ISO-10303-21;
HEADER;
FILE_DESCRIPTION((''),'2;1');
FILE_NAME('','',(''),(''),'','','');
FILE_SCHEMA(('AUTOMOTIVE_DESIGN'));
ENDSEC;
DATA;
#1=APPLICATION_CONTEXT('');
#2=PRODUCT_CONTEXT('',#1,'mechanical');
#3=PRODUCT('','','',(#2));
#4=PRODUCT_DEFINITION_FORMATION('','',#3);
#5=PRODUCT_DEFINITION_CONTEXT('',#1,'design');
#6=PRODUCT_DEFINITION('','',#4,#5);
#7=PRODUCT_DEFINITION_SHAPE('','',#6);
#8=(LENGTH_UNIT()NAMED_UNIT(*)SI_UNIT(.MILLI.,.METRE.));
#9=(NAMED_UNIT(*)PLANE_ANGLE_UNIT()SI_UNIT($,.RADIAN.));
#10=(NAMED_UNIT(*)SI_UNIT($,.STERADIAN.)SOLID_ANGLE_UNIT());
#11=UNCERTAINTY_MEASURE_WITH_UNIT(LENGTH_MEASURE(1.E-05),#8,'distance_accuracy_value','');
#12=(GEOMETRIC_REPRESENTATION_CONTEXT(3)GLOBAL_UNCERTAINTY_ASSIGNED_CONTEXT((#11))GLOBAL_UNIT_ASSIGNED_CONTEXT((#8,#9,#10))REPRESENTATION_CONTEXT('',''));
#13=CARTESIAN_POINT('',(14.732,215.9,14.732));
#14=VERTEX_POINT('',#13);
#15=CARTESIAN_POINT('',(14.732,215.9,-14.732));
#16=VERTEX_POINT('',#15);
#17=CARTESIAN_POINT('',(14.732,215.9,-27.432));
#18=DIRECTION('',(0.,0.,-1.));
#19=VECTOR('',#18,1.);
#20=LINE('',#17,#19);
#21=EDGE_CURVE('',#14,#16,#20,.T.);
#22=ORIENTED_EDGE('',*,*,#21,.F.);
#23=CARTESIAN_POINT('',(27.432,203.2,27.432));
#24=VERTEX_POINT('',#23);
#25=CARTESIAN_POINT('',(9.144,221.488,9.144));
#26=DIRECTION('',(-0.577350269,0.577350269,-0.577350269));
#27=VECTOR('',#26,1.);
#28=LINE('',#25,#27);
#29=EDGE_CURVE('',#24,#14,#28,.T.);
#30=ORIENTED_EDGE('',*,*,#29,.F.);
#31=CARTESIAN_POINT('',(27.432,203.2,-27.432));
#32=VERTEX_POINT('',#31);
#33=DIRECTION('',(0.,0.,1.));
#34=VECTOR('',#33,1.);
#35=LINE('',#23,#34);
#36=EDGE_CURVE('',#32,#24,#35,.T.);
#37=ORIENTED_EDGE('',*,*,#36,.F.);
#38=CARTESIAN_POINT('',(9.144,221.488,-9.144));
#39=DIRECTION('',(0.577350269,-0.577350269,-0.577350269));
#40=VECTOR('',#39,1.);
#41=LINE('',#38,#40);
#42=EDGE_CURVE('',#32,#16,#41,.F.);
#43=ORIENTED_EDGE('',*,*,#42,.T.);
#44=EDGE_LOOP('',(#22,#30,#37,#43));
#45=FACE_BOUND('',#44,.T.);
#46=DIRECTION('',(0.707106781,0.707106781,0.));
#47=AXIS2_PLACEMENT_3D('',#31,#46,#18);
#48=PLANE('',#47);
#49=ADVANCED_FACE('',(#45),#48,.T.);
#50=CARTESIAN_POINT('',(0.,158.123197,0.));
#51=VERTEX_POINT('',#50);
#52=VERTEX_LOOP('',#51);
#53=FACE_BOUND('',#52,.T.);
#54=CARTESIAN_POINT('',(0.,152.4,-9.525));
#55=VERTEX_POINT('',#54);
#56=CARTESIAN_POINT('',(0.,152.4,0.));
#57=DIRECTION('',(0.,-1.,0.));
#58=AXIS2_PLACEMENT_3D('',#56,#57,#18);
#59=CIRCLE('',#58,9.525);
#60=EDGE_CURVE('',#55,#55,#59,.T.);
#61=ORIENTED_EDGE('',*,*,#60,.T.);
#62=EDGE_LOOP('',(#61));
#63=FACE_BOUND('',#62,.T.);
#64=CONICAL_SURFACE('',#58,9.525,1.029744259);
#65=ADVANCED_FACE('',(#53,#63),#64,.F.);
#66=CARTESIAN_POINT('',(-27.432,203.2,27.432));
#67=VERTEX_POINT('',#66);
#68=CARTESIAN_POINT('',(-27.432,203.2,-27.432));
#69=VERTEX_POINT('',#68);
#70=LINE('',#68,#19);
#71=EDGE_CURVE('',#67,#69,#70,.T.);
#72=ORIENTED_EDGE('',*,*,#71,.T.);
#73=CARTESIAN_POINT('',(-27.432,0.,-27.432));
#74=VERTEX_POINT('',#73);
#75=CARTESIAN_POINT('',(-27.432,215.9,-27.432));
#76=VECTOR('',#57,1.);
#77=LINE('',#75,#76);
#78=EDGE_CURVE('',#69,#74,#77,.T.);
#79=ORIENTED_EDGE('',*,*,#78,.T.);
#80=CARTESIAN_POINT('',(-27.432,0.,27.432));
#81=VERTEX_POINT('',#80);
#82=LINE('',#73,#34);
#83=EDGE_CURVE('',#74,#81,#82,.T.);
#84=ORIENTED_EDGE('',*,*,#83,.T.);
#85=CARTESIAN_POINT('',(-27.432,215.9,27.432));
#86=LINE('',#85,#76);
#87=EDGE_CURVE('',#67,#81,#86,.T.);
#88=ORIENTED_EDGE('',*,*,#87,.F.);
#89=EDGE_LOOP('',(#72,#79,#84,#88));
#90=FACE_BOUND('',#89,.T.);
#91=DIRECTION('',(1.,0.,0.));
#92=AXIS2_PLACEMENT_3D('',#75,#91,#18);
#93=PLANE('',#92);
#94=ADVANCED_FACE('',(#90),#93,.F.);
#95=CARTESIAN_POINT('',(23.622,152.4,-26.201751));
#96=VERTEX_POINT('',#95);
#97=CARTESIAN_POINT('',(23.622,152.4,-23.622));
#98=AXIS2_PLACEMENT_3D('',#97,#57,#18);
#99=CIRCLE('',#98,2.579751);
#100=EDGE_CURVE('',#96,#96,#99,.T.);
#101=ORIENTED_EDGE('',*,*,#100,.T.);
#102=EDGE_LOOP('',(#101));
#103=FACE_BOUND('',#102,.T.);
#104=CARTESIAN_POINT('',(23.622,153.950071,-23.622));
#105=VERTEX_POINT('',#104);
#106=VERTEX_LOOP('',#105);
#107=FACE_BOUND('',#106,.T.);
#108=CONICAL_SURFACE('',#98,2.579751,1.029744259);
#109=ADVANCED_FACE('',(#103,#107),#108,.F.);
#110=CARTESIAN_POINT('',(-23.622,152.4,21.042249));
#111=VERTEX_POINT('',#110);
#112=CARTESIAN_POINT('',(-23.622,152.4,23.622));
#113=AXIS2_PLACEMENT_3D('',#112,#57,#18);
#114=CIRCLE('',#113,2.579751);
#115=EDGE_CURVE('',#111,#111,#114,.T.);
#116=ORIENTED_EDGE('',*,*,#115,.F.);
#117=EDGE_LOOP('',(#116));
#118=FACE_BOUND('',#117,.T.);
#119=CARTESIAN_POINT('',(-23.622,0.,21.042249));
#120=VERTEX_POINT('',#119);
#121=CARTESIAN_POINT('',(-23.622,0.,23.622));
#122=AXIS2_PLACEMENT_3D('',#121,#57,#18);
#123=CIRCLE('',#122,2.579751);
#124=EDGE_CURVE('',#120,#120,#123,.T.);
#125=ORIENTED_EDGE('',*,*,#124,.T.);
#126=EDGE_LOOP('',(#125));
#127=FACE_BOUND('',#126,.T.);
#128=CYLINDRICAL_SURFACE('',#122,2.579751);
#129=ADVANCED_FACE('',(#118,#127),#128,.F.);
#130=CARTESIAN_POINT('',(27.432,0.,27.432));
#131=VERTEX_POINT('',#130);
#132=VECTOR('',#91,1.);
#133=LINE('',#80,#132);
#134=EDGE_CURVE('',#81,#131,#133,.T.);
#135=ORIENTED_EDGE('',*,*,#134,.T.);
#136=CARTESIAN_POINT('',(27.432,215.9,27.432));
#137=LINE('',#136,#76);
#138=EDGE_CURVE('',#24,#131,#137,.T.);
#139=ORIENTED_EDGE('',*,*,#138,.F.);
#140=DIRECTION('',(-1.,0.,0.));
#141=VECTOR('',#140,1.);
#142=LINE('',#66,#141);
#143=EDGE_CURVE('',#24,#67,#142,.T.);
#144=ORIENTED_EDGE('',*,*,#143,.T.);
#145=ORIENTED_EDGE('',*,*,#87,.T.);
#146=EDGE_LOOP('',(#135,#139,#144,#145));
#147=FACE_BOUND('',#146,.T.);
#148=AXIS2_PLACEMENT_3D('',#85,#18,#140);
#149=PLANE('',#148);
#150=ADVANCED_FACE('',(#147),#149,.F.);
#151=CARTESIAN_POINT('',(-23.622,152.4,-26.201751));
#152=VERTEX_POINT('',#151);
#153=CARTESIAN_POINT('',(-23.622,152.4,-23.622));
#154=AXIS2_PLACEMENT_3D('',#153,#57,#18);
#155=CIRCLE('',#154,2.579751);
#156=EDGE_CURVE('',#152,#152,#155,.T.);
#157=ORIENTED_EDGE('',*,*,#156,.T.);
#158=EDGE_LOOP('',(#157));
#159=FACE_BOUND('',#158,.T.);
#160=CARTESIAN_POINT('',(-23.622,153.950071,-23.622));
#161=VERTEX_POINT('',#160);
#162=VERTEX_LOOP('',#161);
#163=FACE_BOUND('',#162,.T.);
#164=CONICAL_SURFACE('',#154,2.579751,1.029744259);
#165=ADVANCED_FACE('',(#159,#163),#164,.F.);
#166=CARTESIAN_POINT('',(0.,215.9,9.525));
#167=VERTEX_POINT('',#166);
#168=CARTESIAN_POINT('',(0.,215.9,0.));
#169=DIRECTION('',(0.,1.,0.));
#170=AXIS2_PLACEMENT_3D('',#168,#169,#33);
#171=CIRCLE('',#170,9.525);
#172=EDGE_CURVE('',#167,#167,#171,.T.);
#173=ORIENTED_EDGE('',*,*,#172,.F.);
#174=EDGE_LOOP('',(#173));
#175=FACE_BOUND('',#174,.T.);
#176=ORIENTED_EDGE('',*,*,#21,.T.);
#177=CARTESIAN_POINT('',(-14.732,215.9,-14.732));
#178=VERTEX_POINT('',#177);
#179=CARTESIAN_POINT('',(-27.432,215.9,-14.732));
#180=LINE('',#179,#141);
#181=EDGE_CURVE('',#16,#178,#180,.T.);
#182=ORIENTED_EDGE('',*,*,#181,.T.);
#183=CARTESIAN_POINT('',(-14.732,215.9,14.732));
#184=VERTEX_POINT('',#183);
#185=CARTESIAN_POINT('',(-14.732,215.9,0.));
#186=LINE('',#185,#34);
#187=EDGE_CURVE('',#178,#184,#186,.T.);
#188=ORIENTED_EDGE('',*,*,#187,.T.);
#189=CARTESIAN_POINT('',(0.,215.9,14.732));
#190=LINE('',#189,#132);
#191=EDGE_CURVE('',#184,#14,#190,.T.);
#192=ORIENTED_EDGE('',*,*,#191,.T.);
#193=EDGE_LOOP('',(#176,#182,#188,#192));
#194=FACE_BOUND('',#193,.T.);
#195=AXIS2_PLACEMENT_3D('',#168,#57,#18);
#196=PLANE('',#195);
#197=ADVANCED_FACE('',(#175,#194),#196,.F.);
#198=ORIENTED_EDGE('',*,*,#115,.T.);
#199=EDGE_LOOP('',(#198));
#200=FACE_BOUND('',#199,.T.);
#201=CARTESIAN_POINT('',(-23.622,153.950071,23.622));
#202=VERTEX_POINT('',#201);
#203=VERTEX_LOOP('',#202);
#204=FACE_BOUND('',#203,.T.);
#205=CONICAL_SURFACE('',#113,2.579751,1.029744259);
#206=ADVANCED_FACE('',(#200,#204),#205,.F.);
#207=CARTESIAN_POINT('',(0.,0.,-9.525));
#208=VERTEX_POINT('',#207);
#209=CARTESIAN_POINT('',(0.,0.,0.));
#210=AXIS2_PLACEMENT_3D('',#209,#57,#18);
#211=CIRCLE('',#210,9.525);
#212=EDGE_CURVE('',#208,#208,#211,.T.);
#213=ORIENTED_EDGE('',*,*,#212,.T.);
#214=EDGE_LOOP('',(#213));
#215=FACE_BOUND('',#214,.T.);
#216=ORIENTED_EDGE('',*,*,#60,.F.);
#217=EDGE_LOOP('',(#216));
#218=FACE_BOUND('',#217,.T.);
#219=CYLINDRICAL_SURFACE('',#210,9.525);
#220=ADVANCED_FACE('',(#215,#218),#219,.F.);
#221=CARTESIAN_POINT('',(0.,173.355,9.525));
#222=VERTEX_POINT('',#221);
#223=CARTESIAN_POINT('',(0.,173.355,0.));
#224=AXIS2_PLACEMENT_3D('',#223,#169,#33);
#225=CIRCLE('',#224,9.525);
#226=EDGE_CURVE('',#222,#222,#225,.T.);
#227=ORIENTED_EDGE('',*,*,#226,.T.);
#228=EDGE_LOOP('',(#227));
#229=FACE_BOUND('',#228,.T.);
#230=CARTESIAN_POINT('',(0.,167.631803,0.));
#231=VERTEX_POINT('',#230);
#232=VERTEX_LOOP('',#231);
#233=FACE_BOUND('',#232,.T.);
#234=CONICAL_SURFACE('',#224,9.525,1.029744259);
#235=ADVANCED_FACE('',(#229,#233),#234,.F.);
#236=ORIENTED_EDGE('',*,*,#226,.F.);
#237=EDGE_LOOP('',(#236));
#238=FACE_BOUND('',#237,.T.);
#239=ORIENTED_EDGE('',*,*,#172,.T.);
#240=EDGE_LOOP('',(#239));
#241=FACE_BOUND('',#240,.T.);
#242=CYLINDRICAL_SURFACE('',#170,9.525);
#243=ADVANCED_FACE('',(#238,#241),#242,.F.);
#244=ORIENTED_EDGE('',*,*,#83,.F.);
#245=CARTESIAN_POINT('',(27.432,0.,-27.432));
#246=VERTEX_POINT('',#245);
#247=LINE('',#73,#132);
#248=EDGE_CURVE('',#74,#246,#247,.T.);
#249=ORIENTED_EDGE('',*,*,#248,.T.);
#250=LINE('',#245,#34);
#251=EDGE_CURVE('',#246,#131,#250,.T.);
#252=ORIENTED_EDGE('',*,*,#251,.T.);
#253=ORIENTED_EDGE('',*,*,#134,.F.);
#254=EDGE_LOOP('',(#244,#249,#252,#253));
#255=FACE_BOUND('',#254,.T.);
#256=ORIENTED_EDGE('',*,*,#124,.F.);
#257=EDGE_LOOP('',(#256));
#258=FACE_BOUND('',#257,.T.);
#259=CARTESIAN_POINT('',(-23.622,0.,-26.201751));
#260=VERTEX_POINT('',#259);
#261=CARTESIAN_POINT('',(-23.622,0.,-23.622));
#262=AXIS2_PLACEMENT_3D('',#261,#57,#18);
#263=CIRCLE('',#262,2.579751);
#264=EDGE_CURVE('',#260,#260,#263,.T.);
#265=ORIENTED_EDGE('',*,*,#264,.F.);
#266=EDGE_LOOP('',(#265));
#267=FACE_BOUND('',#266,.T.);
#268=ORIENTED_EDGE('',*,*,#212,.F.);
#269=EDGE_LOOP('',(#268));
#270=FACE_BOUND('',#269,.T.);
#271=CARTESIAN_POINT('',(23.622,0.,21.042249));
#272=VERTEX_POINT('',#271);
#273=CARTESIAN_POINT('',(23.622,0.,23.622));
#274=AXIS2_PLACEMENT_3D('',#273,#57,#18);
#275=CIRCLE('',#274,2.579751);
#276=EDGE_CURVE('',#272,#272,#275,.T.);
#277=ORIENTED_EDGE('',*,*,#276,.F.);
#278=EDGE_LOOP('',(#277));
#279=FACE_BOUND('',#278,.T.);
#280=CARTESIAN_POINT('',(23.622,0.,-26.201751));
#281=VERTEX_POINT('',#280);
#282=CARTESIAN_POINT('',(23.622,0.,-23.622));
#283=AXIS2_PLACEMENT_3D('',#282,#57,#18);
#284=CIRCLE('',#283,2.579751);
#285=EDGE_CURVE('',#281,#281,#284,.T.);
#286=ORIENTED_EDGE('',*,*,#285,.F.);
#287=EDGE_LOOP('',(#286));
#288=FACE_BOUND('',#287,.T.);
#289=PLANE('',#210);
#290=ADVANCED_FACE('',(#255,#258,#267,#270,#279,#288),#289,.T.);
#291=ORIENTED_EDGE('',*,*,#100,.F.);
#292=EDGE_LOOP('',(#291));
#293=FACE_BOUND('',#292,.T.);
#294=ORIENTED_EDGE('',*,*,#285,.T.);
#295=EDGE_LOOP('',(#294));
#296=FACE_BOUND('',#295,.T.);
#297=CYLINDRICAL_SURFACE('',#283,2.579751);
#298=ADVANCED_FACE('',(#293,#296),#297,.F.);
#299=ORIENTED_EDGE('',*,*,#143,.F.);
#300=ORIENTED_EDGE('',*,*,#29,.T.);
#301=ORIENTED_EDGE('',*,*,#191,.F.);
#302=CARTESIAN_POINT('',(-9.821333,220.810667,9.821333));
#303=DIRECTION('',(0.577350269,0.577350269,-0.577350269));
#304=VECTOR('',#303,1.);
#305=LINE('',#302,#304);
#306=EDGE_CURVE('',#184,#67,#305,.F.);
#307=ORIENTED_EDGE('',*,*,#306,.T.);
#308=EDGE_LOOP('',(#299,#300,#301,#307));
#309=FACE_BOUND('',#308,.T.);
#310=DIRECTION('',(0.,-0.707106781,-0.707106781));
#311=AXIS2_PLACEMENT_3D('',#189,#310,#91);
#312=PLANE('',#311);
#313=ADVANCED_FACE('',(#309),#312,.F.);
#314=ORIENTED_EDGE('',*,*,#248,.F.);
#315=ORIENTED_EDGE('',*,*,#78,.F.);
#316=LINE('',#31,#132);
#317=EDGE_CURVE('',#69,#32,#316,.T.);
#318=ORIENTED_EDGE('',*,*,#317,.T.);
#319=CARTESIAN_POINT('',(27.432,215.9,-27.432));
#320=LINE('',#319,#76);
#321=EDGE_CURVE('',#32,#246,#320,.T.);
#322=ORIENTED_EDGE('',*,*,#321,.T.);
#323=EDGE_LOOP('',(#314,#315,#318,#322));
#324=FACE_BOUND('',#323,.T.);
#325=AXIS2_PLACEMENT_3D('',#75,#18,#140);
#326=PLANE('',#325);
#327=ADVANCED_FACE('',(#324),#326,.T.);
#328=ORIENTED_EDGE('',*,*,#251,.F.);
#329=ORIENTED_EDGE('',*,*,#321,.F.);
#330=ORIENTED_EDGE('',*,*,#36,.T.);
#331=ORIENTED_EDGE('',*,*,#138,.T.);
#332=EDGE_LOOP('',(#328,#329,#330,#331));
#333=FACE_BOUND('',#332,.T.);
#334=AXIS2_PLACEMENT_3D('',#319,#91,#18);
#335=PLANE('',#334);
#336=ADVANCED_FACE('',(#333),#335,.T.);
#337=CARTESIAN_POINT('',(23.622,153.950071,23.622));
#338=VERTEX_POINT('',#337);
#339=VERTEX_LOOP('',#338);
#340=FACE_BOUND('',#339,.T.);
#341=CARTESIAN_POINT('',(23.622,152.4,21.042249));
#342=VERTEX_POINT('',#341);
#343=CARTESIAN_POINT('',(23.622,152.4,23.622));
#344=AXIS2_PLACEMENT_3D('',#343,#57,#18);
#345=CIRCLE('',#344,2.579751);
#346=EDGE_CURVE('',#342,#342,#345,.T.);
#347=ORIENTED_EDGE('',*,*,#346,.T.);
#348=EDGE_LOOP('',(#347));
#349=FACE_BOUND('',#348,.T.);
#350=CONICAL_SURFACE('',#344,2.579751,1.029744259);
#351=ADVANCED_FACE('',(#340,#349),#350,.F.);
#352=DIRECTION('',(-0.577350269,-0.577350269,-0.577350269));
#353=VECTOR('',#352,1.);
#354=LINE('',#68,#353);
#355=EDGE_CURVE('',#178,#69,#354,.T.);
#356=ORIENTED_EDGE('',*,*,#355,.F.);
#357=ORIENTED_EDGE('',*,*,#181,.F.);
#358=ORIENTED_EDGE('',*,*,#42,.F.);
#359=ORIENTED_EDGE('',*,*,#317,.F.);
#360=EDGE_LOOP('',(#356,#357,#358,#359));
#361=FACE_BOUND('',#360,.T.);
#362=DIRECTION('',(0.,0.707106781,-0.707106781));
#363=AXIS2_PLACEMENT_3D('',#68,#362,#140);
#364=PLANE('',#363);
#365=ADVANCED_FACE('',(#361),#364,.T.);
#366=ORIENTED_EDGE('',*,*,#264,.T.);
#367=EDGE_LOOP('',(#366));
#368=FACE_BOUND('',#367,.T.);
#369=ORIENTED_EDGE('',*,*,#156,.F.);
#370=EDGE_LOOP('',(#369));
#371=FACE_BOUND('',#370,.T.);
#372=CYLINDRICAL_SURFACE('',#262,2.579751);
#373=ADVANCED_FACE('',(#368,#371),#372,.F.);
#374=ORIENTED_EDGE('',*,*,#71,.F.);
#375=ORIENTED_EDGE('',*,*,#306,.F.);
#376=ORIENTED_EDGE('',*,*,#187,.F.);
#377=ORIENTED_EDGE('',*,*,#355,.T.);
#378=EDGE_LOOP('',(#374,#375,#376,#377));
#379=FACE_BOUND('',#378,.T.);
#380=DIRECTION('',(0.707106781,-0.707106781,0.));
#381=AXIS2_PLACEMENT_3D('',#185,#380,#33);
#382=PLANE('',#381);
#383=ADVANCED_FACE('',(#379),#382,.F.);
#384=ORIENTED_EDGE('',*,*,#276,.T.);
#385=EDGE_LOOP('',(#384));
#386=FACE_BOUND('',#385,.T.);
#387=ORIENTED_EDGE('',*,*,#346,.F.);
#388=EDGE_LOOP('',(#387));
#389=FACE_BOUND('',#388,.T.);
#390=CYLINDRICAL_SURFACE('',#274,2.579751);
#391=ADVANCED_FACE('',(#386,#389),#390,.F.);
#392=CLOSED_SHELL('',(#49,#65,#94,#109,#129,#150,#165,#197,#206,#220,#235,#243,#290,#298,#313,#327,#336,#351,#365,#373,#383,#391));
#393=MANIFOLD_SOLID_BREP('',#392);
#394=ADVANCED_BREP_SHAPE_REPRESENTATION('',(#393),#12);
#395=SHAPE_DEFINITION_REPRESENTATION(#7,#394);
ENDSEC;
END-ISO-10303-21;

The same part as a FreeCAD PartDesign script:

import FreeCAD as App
import Part
import Sketcher
from FreeCAD import Vector
Q = App.Units.Quantity


def edges_at(feature, points):
    """Names of the edges that pass closest to the given points."""
    edges = feature.Shape.Edges
    near = lambda p: min(range(len(edges)), key=lambda i: edges[i].distToShape(Part.Vertex(*p))[0])
    return sorted({f"Edge{near(p) + 1}" for p in points})

doc = App.newDocument("Part")
body = doc.addObject("PartDesign::Body", "Body")

# Sketch on XZ plane
sketch1 = body.newObject("Sketcher::SketchObject", "Sketch")
sketch1.AttachmentSupport = (doc.getObject("XZ_Plane"), [""])
sketch1.MapMode = "FlatFace"
sketch1.addGeometry([
    Part.LineSegment(Vector(-27.432, -27.432, 0), Vector(-27.432, 27.432, 0)),
    Part.LineSegment(Vector(-27.432, 27.432, 0), Vector(27.432, 27.432, 0)),
    Part.LineSegment(Vector(27.432, 27.432, 0), Vector(27.432, -27.432, 0)),
    Part.LineSegment(Vector(27.432, -27.432, 0), Vector(-27.432, -27.432, 0)),
], False)
sketch1.addConstraint([
    Sketcher.Constraint("Coincident", 0, 2, 1, 1),
    Sketcher.Constraint("Coincident", 1, 2, 2, 1),
    Sketcher.Constraint("Coincident", 2, 2, 3, 1),
    Sketcher.Constraint("Coincident", 3, 2, 0, 1),
    Sketcher.Constraint("Vertical", 0),
    Sketcher.Constraint("Horizontal", 1),
    Sketcher.Constraint("Vertical", 2),
    Sketcher.Constraint("Horizontal", 3),
    Sketcher.Constraint("Symmetric", 0, 2, 2, 2, -1, 1),
    Sketcher.Constraint("Equal", 3, 0),
    Sketcher.Constraint("DistanceX", 1, 1, 1, 2, Q("2.16 in")),
])
pad1 = body.newObject("PartDesign::Pad", "Pad")
pad1.Profile = sketch1
pad1.Length = Q("8.5 in")
pad1.Reversed = True

# Sketch on XZ plane
sketch2 = body.newObject("Sketcher::SketchObject", "Sketch001")
sketch2.AttachmentSupport = (doc.getObject("XZ_Plane"), [""])
sketch2.MapMode = "FlatFace"
sketch2.addGeometry(Part.Circle(Vector(0, 0, 0), Vector(0, 0, 1), 9.525), False)
sketch2.addConstraint([
    Sketcher.Constraint("Coincident", 0, 3, -1, 1),
    Sketcher.Constraint("Diameter", 0, Q("0.75 in")),
])
doc.recompute()
hole = body.newObject("PartDesign::Hole", "Hole")
hole.Profile = sketch2
hole.ThreadType = "None"
hole.Diameter = Q("0.75 in")
hole.DepthType = "Dimension"
hole.Depth = Q("6 in")
hole.DrillPoint = "Angled"
hole.DrillPointAngle = 118

# Sketch on XZ plane
sketch3 = body.newObject("Sketcher::SketchObject", "Sketch002")
sketch3.AttachmentSupport = (doc.getObject("XZ_Plane"), [""])
sketch3.MapMode = "FlatFace"
sketch3.addGeometry([
    Part.Circle(Vector(-23.622, 23.622, 0), Vector(0, 0, 1), 2.579751),
    Part.Circle(Vector(23.622, 23.622, 0), Vector(0, 0, 1), 2.579751),
    Part.Circle(Vector(23.622, -23.622, 0), Vector(0, 0, 1), 2.579751),
    Part.Circle(Vector(-23.622, -23.622, 0), Vector(0, 0, 1), 2.579751),
], False)
sketch3.addConstraint([
    Sketcher.Constraint("Equal", 0, 1),
    Sketcher.Constraint("Equal", 1, 2),
    Sketcher.Constraint("Equal", 2, 3),
    Sketcher.Constraint("Symmetric", 0, 3, 2, 3, -1, 1),
    Sketcher.Constraint("Symmetric", 1, 3, 3, 3, -1, 1),
    Sketcher.Constraint("Symmetric", 0, 3, 1, 3, -2),
    Sketcher.Constraint("Diameter", 0, 5.159502),
    Sketcher.Constraint("DistanceX", 0, 3, -1, 1, Q("0.93 in")),
    Sketcher.Constraint("DistanceY", -1, 1, 0, 3, Q("0.93 in")),
])
doc.recompute()
hole2 = body.newObject("PartDesign::Hole", "Hole001")
hole2.Profile = sketch3
hole2.ThreadType = "None"
hole2.Diameter = 5.159502
hole2.DepthType = "Dimension"
hole2.Depth = Q("6 in")
hole2.DrillPoint = "Angled"
hole2.DrillPointAngle = 118

# Sketch on XZ plane
sketch4 = body.newObject("Sketcher::SketchObject", "Sketch003")
sketch4.AttachmentSupport = (doc.getObject("XZ_Plane"), [""])
sketch4.MapMode = "FlatFace"
sketch4.AttachmentOffset = App.Placement(Vector(0, 0, -8.5 * 25.4), App.Rotation())
sketch4.addGeometry(Part.Circle(Vector(0, 0, 0), Vector(0, 0, 1), 9.525), False)
sketch4.addConstraint([
    Sketcher.Constraint("Coincident", 0, 3, -1, 1),
    Sketcher.Constraint("Diameter", 0, Q("0.75 in")),
])
doc.recompute()
hole3 = body.newObject("PartDesign::Hole", "Hole002")
hole3.Profile = sketch4
hole3.ThreadType = "None"
hole3.Diameter = Q("0.75 in")
hole3.DepthType = "Dimension"
hole3.Depth = Q("1.675 in")
hole3.DrillPoint = "Angled"
hole3.DrillPointAngle = 118
hole3.Reversed = True
doc.recompute()

chamfer = body.newObject("PartDesign::Chamfer", "Chamfer")
chamfer.Base = (hole3, edges_at(hole3, [
    (0, 215.9, 27.432),
    (-27.432, 215.9, 0),
    (0, 215.9, -27.432),
    (27.432, 215.9, 0),
]))
chamfer.Size = Q("0.5 in")

doc.recompute()
